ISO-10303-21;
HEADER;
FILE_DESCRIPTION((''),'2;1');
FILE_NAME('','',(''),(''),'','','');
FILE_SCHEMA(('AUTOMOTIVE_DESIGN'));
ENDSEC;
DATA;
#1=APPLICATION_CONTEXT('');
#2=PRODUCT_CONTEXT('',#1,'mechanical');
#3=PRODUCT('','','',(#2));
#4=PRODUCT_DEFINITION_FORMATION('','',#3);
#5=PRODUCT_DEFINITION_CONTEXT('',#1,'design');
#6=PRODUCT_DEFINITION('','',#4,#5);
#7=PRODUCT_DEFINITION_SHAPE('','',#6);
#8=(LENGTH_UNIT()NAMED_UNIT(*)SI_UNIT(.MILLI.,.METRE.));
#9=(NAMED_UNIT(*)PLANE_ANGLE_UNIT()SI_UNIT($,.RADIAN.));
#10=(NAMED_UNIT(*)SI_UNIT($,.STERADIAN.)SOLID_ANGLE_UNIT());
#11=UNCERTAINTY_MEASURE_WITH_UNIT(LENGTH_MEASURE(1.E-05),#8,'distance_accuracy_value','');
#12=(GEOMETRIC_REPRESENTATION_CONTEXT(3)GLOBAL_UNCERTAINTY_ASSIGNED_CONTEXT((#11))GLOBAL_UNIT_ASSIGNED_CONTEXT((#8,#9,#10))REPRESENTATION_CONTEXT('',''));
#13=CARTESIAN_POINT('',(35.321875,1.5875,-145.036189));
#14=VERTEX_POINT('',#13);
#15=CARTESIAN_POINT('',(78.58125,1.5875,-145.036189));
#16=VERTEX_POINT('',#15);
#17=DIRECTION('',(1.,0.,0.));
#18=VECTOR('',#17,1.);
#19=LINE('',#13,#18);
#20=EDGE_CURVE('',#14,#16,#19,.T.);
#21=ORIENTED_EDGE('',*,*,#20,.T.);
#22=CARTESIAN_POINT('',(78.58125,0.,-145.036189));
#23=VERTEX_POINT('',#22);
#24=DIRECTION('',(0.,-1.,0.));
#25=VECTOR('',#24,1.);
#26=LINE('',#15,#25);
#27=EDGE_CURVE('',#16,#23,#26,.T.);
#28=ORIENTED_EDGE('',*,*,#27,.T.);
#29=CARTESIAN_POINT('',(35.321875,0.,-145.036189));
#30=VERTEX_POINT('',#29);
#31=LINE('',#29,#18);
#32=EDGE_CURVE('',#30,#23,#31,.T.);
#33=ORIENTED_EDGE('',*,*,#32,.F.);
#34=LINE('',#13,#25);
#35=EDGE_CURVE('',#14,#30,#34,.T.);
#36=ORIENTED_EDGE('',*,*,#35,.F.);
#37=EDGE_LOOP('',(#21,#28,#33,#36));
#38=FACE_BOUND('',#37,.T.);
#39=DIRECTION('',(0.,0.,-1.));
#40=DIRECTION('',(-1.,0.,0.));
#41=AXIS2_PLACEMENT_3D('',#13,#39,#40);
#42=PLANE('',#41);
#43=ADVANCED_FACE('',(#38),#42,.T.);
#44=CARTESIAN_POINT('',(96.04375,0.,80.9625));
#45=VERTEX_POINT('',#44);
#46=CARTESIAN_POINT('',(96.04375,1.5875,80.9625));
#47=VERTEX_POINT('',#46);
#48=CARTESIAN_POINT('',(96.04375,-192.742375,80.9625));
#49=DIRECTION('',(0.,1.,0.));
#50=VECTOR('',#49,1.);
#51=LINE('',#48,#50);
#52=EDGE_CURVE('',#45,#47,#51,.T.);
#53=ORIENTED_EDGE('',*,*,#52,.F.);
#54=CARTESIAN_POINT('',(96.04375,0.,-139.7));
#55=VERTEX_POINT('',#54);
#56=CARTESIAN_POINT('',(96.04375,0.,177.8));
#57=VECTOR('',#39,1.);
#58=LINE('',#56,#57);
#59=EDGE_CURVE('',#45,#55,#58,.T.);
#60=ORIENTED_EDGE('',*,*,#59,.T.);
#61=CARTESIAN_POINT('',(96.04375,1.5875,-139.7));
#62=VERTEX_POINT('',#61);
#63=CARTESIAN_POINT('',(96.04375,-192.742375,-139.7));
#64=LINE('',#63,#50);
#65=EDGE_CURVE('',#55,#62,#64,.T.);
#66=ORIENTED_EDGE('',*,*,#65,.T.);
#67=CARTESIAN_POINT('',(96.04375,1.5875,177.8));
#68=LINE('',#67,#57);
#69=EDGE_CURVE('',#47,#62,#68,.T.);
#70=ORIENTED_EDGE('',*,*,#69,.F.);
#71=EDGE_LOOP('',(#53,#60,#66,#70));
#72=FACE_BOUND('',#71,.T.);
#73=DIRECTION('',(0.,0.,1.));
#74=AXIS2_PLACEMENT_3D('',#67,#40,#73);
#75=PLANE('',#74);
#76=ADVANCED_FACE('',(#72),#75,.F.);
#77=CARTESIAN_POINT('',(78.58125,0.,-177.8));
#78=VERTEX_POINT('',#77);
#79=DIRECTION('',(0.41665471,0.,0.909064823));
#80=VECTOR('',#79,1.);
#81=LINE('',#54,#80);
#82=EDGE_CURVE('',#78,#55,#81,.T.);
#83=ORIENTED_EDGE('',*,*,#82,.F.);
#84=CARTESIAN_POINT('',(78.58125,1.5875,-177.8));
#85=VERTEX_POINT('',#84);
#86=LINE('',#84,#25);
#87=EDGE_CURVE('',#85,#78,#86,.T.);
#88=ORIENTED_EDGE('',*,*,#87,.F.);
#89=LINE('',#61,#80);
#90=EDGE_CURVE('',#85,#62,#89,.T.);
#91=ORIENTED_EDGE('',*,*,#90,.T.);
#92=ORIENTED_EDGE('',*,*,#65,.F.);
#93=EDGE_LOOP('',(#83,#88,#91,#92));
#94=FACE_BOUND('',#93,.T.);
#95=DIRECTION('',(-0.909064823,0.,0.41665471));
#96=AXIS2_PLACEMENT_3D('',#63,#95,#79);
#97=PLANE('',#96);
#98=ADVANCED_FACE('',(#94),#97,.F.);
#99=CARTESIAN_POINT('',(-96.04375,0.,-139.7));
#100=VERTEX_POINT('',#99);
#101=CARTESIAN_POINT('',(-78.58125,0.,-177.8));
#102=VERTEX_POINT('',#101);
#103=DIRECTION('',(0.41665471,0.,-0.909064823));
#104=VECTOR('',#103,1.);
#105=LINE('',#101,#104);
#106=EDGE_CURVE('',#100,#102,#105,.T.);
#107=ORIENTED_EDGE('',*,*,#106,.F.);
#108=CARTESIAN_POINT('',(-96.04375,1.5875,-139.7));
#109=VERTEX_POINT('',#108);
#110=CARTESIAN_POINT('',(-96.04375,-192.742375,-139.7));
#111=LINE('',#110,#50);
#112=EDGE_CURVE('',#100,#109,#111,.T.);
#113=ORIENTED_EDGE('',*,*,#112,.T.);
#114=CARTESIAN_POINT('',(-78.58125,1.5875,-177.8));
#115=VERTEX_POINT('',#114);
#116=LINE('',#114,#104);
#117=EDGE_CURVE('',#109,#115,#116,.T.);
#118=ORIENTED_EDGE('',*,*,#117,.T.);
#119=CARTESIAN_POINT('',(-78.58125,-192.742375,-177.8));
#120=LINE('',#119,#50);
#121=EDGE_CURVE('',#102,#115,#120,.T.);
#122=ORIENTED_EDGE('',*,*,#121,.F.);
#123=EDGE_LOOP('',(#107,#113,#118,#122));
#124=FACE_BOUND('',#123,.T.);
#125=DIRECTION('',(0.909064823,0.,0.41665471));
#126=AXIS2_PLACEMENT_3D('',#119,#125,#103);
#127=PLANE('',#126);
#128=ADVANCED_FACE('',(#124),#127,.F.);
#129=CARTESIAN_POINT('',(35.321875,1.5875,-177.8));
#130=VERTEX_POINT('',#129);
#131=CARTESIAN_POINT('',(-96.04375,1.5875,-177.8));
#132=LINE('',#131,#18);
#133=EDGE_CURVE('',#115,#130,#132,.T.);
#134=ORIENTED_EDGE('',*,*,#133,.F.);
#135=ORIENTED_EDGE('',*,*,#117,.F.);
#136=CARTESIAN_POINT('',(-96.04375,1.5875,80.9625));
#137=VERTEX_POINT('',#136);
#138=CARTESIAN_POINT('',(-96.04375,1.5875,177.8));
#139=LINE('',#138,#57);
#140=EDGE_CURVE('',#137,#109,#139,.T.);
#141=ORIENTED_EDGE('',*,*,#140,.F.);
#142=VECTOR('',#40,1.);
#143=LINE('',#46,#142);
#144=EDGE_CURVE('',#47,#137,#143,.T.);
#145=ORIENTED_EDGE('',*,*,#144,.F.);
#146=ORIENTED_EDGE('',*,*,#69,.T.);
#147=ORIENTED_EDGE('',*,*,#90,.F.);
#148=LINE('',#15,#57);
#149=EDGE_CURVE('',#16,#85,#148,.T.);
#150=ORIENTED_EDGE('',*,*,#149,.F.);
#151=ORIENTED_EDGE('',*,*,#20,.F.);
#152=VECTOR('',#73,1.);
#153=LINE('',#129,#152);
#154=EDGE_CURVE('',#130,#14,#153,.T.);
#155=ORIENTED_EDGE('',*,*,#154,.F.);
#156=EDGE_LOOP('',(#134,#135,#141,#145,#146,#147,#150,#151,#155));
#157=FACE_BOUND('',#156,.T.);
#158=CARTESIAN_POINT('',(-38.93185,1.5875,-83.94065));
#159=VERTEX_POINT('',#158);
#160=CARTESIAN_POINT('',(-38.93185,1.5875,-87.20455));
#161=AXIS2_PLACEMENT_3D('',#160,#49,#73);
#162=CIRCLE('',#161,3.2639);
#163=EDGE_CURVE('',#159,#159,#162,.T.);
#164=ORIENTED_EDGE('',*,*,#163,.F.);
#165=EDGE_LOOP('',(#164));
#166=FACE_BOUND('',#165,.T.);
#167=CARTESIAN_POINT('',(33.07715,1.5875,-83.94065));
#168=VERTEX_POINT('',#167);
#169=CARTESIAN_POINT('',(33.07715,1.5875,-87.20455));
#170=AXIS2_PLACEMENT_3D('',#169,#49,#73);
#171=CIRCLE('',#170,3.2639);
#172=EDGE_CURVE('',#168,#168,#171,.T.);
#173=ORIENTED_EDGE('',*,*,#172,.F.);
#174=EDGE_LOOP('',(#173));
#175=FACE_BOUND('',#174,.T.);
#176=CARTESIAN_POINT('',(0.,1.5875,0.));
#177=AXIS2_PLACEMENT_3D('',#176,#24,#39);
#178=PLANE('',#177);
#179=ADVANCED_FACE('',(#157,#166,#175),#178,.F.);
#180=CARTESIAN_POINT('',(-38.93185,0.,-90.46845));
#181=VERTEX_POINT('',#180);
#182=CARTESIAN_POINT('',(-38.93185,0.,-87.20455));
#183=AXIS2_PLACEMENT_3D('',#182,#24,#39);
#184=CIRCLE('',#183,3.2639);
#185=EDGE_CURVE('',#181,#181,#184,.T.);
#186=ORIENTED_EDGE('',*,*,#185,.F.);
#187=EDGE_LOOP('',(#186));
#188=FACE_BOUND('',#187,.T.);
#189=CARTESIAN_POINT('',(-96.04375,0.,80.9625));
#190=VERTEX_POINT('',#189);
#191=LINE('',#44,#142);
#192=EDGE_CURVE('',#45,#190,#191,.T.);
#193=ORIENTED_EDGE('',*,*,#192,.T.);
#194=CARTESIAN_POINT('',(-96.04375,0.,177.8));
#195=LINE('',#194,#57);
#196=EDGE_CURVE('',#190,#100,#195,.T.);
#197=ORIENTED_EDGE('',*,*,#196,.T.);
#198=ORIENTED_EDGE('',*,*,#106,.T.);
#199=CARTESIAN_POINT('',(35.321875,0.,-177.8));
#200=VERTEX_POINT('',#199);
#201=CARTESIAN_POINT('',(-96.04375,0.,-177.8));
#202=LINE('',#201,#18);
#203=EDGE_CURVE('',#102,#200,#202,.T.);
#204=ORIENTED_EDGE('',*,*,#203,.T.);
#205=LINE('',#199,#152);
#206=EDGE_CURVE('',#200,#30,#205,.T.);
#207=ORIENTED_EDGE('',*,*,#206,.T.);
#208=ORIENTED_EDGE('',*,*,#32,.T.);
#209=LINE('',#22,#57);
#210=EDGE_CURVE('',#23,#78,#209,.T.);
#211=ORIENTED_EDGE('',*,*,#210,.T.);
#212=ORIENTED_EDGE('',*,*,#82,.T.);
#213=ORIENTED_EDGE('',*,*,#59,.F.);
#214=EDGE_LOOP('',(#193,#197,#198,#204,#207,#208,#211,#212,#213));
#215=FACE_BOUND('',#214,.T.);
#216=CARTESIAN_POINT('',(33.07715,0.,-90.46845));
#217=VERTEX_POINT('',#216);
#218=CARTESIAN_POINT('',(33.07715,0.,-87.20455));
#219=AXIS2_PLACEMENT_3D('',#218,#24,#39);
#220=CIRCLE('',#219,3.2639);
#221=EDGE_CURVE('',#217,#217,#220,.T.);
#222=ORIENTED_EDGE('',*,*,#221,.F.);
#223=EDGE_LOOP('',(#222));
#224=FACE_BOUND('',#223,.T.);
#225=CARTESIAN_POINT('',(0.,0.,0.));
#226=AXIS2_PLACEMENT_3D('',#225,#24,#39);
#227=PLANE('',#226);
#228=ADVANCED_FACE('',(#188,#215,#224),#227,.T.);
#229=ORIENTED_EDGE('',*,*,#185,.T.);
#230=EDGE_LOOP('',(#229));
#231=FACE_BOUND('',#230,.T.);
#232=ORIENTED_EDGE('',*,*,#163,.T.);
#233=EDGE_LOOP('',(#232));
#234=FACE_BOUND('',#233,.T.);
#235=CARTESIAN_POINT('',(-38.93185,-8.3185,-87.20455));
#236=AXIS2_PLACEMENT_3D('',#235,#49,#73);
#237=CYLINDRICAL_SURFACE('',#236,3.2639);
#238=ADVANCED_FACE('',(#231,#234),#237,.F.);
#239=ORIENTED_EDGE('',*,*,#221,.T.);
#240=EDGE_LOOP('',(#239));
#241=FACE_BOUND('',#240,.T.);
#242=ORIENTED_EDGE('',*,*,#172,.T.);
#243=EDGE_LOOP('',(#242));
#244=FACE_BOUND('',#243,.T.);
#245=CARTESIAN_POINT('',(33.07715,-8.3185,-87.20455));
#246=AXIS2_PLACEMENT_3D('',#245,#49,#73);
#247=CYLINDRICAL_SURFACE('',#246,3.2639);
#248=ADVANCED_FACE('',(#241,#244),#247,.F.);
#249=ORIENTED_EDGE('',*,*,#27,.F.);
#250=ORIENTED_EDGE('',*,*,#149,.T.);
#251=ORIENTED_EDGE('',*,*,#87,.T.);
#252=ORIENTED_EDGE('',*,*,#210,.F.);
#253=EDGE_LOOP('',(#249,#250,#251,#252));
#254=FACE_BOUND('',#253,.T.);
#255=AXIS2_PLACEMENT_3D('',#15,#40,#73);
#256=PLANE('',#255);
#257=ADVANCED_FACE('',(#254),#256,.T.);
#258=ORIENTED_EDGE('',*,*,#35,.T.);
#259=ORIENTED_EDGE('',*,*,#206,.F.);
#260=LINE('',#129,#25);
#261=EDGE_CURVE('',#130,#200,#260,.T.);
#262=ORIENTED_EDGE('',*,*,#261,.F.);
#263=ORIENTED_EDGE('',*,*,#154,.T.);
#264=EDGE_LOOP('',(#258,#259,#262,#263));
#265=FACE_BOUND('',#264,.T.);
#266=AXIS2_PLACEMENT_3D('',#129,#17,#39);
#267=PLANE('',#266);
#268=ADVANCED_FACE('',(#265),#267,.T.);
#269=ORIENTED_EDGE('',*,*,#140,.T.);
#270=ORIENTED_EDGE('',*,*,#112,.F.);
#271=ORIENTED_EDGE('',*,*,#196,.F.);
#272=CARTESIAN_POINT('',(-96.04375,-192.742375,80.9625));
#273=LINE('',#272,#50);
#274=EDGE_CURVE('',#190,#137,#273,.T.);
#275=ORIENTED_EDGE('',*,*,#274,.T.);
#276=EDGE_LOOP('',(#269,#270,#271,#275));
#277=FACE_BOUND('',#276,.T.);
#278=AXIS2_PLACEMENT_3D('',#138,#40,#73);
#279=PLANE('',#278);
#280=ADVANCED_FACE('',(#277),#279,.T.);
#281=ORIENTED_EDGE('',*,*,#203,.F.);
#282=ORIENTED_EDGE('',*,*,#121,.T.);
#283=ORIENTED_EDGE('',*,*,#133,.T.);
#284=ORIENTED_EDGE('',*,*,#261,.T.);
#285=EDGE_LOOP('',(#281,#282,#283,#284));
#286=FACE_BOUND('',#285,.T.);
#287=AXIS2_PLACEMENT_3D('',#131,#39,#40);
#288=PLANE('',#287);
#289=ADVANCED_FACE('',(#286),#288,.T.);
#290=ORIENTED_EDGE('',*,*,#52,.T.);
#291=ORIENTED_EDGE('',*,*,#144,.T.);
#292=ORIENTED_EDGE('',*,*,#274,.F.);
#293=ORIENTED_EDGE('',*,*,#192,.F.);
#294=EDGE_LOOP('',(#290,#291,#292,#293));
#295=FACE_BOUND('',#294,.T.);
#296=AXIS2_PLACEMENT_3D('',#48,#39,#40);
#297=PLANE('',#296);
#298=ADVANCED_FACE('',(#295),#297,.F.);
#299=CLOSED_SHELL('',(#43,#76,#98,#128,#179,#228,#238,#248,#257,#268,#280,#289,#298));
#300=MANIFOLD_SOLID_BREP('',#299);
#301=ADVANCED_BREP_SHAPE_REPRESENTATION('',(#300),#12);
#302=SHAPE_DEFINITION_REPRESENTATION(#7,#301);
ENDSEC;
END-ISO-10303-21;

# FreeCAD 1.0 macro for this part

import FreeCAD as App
import Part
import Sketcher
from FreeCAD import Vector
Q = App.Units.Quantity

doc = App.newDocument("Part")
body = doc.addObject("PartDesign::Body", "Body")
body.AllowCompound = True

sketch1 = doc.addObject("Sketcher::SketchObject", "Sketch")
body.addObject(sketch1)
sketch1.AttachmentSupport = (doc.XZ_Plane, [""])
sketch1.MapMode = "FlatFace"
sketch1.addGeometry([
    Part.LineSegment(Vector(35, -178, 0), Vector(-96, -178, 0)),
    Part.LineSegment(Vector(-96, -178, 0), Vector(-96, 178, 0)),
    Part.LineSegment(Vector(-96, 178, 0), Vector(96, 178, 0)),
    Part.LineSegment(Vector(96, 178, 0), Vector(96, -178, 0)),
    Part.LineSegment(Vector(96, -178, 0), Vector(79, -178, 0)),
    Part.LineSegment(Vector(79, -178, 0), Vector(79, -145, 0)),
    Part.LineSegment(Vector(79, -145, 0), Vector(35, -145, 0)),
    Part.LineSegment(Vector(35, -145, 0), Vector(35, -178, 0)),
], False)
sketch1.addConstraint([
    Sketcher.Constraint("Coincident", 0, 2, 1, 1),
    Sketcher.Constraint("Coincident", 1, 2, 2, 1),
    Sketcher.Constraint("Coincident", 2, 2, 3, 1),
    Sketcher.Constraint("Coincident", 3, 2, 4, 1),
    Sketcher.Constraint("Coincident", 4, 2, 5, 1),
    Sketcher.Constraint("Coincident", 5, 2, 6, 1),
    Sketcher.Constraint("Coincident", 6, 2, 7, 1),
    Sketcher.Constraint("Coincident", 7, 2, 0, 1),
    Sketcher.Constraint("Horizontal", 0),
    Sketcher.Constraint("Vertical", 1),
    Sketcher.Constraint("Horizontal", 2),
    Sketcher.Constraint("Vertical", 3),
    Sketcher.Constraint("Horizontal", 4),
    Sketcher.Constraint("Vertical", 5),
    Sketcher.Constraint("Horizontal", 6),
    Sketcher.Constraint("Vertical", 7),
    Sketcher.Constraint("Symmetric", 0, 2, 2, 2, -1, 1),
    Sketcher.Constraint("Horizontal", 0, 2, 3, 2),
    Sketcher.Constraint("DistanceY", 1, 1, 1, 2, Q("14 in")),
    Sketcher.Constraint("DistanceX", 0, 2, 0, 1, Q("5.171875 in")),
    Sketcher.Constraint("DistanceX", 2, 1, 2, 2, Q("7.5625 in")),
    Sketcher.Constraint("DistanceX", 4, 2, 4, 1, Q("0.6875 in")),
    Sketcher.Constraint("DistanceY", 5, 1, 5, 2, 32.763811),
])
pad1 = doc.addObject("PartDesign::Pad", "Pad")
body.addObject(pad1)
pad1.Profile = sketch1
pad1.Length = Q("0.0625 in")
pad1.Reversed = True

sketch2 = doc.addObject("Sketcher::SketchObject", "Sketch001")
body.addObject(sketch2)
sketch2.AttachmentSupport = (doc.XZ_Plane, [""])
sketch2.MapMode = "FlatFace"
sketch2.AttachmentOffset = App.Placement(Vector(0, 0, -0.0625 * 25.4), App.Rotation())
sketch2.addGeometry([
    Part.LineSegment(Vector(-96, 81, 0), Vector(-96, 97, 0)),
    Part.LineSegment(Vector(-96, 97, 0), Vector(96, 97, 0)),
    Part.LineSegment(Vector(96, 97, 0), Vector(96, 81, 0)),
    Part.LineSegment(Vector(96, 81, 0), Vector(-96, 81, 0)),
    Part.LineSegment(Vector(-96, -140, 0), Vector(-79, -178, 0)),
    Part.LineSegment(Vector(-79, -178, 0), Vector(-96, -178, 0)),
    Part.LineSegment(Vector(-96, -178, 0), Vector(-96, -140, 0)),
    Part.LineSegment(Vector(79, -178, 0), Vector(96, -140, 0)),
    Part.LineSegment(Vector(96, -140, 0), Vector(96, -178, 0)),
    Part.LineSegment(Vector(96, -178, 0), Vector(79, -178, 0)),
], False)
sketch2.addConstraint([
    Sketcher.Constraint("Coincident", 0, 2, 1, 1),
    Sketcher.Constraint("Coincident", 1, 2, 2, 1),
    Sketcher.Constraint("Coincident", 2, 2, 3, 1),
    Sketcher.Constraint("Coincident", 3, 2, 0, 1),
    Sketcher.Constraint("Coincident", 4, 2, 5, 1),
    Sketcher.Constraint("Coincident", 5, 2, 6, 1),
    Sketcher.Constraint("Coincident", 6, 2, 4, 1),
    Sketcher.Constraint("Coincident", 7, 2, 8, 1),
    Sketcher.Constraint("Coincident", 8, 2, 9, 1),
    Sketcher.Constraint("Coincident", 9, 2, 7, 1),
    Sketcher.Constraint("Vertical", 0),
    Sketcher.Constraint("Horizontal", 1),
    Sketcher.Constraint("Vertical", 2),
    Sketcher.Constraint("Horizontal", 3),
    Sketcher.Constraint("Horizontal", 5),
    Sketcher.Constraint("Vertical", 6),
    Sketcher.Constraint("Vertical", 8),
    Sketcher.Constraint("Horizontal", 9),
    Sketcher.Constraint("Symmetric", 6, 2, 7, 2, -2),
    Sketcher.Constraint("Symmetric", 4, 2, 9, 2, -2),
    Sketcher.Constraint("Vertical", 3, 2, 5, 2),
    Sketcher.Constraint("Vertical", 2, 2, 7, 2),
    Sketcher.Constraint("DistanceY", 6, 1, 6, 2, Q("1.5 in")),
    Sketcher.Constraint("DistanceY", 4, 2, -1, 1, Q("7 in")),
    Sketcher.Constraint("DistanceX", 1, 1, 1, 2, Q("7.5625 in")),
    Sketcher.Constraint("DistanceX", 5, 2, 5, 1, Q("0.6875 in")),
    Sketcher.Constraint("DistanceY", 0, 1, 0, 2, Q("0.625 in")),
    Sketcher.Constraint("DistanceY", -1, 1, 0, 2, Q("3.8125 in")),
])
pocket1 = doc.addObject("PartDesign::Pocket", "Pocket")
body.addObject(pocket1)
pocket1.Profile = sketch2
pocket1.Length = Q("0.0625 in")
pocket1.Reversed = True

sketch3 = doc.addObject("Sketcher::SketchObject", "Sketch002")
body.addObject(sketch3)
sketch3.AttachmentSupport = (doc.XZ_Plane, [""])
sketch3.MapMode = "FlatFace"
sketch3.AttachmentOffset = App.Placement(Vector(0, 0, -0.0625 * 25.4), App.Rotation())
sketch3.addGeometry([
    Part.Circle(Vector(33.1, -87.2, 0), Vector(0, 0, 1), 3.3),
    Part.Circle(Vector(-38.9, -87.2, 0), Vector(0, 0, 1), 3.3),
], False)
sketch3.addConstraint([
    Sketcher.Constraint("Equal", 0, 1),
    Sketcher.Constraint("Horizontal", 0, 3, 1, 3),
    Sketcher.Constraint("Diameter", 0, Q("0.257 in")),
    Sketcher.Constraint("DistanceX", 1, 3, 0, 3, Q("2.835 in")),
    Sketcher.Constraint("DistanceX", -1, 1, 0, 3, 33.07715),
    Sketcher.Constraint("DistanceY", 0, 3, -1, 1, 87.20455),
])
pocket2 = doc.addObject("PartDesign::Pocket", "Pocket001")
body.addObject(pocket2)
pocket2.Profile = sketch3
pocket2.Length = Q("0.39 in")
pocket2.Reversed = True

sketch4 = doc.addObject("Sketcher::SketchObject", "Sketch003")
body.addObject(sketch4)
sketch4.AttachmentSupport = (doc.XZ_Plane, [""])
sketch4.MapMode = "FlatFace"
sketch4.AttachmentOffset = App.Placement(Vector(0, 0, -0.0625 * 25.4), App.Rotation())
sketch4.addGeometry([
    Part.LineSegment(Vector(-147, 88, 0), Vector(-147, 227, 0)),
    Part.LineSegment(Vector(-147, 227, 0), Vector(103, 227, 0)),
    Part.LineSegment(Vector(103, 227, 0), Vector(103, 88, 0)),
    Part.LineSegment(Vector(103, 88, 0), Vector(-147, 88, 0)),
], False)
sketch4.addConstraint([
    Sketcher.Constraint("Coincident", 0, 2, 1, 1),
    Sketcher.Constraint("Coincident", 1, 2, 2, 1),
    Sketcher.Constraint("Coincident", 2, 2, 3, 1),
    Sketcher.Constraint("Coincident", 3, 2, 0, 1),
    Sketcher.Constraint("Vertical", 0),
    Sketcher.Constraint("Horizontal", 1),
    Sketcher.Constraint("Vertical", 2),
    Sketcher.Constraint("Horizontal", 3),
    Sketcher.Constraint("DistanceX", 1, 1, 1, 2, 250.815564),
    Sketcher.Constraint("DistanceY", 0, 1, 0, 2, 138.767374),
    Sketcher.Constraint("DistanceX", 0, 2, -1, 1, 147.364131),
    Sketcher.Constraint("DistanceY", -1, 1, 0, 2, 226.511189),
])
pocket3 = doc.addObject("PartDesign::Pocket", "Pocket002")
body.addObject(pocket3)
pocket3.Profile = sketch4
pocket3.Length = Q("4.93 in")
pocket3.Reversed = True

doc.recompute()
